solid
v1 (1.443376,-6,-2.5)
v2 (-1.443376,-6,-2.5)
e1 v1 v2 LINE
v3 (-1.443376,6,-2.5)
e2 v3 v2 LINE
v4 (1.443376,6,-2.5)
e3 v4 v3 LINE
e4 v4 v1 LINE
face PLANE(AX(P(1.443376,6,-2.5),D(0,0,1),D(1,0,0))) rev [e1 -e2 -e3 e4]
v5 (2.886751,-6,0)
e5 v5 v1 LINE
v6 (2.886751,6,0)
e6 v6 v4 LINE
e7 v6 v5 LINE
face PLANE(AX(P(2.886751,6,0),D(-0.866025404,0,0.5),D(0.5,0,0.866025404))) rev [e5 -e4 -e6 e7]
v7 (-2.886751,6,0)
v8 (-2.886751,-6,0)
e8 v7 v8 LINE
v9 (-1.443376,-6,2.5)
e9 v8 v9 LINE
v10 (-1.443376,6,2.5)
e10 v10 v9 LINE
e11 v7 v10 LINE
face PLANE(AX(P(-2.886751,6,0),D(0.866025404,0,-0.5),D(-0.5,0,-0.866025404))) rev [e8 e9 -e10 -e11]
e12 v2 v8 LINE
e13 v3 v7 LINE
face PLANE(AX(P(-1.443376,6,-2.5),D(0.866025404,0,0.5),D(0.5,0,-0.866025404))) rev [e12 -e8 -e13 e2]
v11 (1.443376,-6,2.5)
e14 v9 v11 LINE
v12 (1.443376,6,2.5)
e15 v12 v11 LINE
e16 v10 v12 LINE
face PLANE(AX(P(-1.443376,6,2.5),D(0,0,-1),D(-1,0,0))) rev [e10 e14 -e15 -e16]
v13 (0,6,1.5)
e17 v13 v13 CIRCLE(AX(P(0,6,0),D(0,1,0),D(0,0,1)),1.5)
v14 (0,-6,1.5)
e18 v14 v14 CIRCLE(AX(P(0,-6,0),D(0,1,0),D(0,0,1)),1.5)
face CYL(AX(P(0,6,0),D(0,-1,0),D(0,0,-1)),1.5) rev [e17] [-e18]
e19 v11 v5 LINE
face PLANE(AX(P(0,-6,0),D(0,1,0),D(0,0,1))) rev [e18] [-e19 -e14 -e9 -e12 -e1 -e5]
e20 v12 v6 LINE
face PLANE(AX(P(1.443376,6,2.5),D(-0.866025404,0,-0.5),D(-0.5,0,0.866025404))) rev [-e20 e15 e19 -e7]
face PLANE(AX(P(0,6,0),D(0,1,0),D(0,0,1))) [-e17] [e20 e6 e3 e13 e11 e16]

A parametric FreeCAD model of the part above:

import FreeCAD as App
import Part
import Sketcher
from FreeCAD import Vector
Q = App.Units.Quantity

doc = App.newDocument("Part")
params = doc.addObject("Spreadsheet::Sheet", "Params")
for row, (alias, value) in enumerate([
    ("sketch1_diameter", "3 mm"),
    ("pad1_length", "12 mm"),
], start=1):
    params.set(f"A{row}", alias)
    params.set(f"B{row}", "=" + value)
    params.setAlias(f"B{row}", alias)

body = doc.addObject("PartDesign::Body", "Body")

sketch1 = doc.addObject("Sketcher::SketchObject", "Sketch")
body.addObject(sketch1)
sketch1.AttachmentSupport = (doc.XZ_Plane, [""])
sketch1.MapMode = "FlatFace"
sketch1.addGeometry([
    Part.LineSegment(Vector(1.443376, 2.5, 0), Vector(2.886751, 0, 0)),
    Part.LineSegment(Vector(2.886751, 0, 0), Vector(1.443376, -2.5, 0)),
    Part.LineSegment(Vector(1.443376, -2.5, 0), Vector(-1.443376, -2.5, 0)),
    Part.LineSegment(Vector(-1.443376, -2.5, 0), Vector(-2.886751, 0, 0)),
    Part.LineSegment(Vector(-2.886751, 0, 0), Vector(-1.443376, 2.5, 0)),
    Part.LineSegment(Vector(-1.443376, 2.5, 0), Vector(1.443376, 2.5, 0)),
    Part.Circle(Vector(0, 0, 0), Vector(0, 0, 1), 1.5),
], False)
sketch1.addConstraint([
    Sketcher.Constraint("Coincident", 0, 2, 1, 1),
    Sketcher.Constraint("Coincident", 1, 2, 2, 1),
    Sketcher.Constraint("Coincident", 2, 2, 3, 1),
    Sketcher.Constraint("Coincident", 3, 2, 4, 1),
    Sketcher.Constraint("Coincident", 4, 2, 5, 1),
    Sketcher.Constraint("Coincident", 5, 2, 0, 1),
    Sketcher.Constraint("Horizontal", 2),
    Sketcher.Constraint("Horizontal", 5),
    Sketcher.Constraint("Coincident", 6, 3, -1, 1),
    Sketcher.Constraint("Symmetric", 0, 2, 3, 2, -1, 1),
    Sketcher.Constraint("Symmetric", 1, 2, 4, 2, -1, 1),
    Sketcher.Constraint("PointOnObject", 0, 2, -1),
    Sketcher.Constraint("Parallel", 0, 3),
    Sketcher.Constraint("Vertical", 2, 2, 4, 2),
    Sketcher.Constraint("Diameter", 6, Q("3 mm")),
    Sketcher.Constraint("Angle", 0, Q("-60 deg")),
    Sketcher.Constraint("DistanceY", 2, 2, 4, 2, Q("5 mm")),
    Sketcher.Constraint("DistanceX", 2, 2, 2, 1, Q("2.886751 mm")),
])
sketch1.setExpression("Constraints[14]", "Params.sketch1_diameter")
pad1 = doc.addObject("PartDesign::Pad", "Pad")
body.addObject(pad1)
pad1.Profile = sketch1
pad1.setExpression("Length", "Params.pad1_length")
pad1.Midplane = True

doc.recompute()
